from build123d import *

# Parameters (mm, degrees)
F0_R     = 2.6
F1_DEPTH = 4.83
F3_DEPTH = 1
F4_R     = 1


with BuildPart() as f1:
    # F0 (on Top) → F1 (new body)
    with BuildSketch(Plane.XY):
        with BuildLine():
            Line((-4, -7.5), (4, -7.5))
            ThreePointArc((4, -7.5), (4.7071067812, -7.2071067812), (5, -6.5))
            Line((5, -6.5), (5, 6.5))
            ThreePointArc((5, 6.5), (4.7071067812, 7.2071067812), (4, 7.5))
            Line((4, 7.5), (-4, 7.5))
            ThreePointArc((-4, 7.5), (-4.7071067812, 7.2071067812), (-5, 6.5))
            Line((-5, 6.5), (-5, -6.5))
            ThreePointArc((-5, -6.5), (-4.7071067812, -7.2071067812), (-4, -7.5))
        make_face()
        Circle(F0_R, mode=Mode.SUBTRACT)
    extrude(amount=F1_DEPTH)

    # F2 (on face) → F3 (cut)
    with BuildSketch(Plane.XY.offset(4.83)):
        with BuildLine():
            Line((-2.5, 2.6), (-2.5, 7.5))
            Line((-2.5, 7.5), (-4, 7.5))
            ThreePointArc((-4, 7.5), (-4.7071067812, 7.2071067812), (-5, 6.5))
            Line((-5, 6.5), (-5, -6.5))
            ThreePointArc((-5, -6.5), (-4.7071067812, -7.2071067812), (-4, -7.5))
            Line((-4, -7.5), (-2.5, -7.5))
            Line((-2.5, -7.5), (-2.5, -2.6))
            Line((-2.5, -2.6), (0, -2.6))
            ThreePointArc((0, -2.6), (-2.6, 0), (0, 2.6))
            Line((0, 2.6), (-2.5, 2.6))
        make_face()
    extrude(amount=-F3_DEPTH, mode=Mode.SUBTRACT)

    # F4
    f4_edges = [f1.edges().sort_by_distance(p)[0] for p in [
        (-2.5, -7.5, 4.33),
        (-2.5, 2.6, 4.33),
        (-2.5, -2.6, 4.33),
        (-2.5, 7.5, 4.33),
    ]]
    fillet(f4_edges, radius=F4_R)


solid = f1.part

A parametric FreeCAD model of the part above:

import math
import FreeCAD as App
import Part
import Sketcher
Q = App.Units.Quantity


def edges_at(feature, points):
    """Names of the edges that pass closest to the given points."""
    edges = feature.Shape.Edges
    near = lambda p: min(range(len(edges)), key=lambda i: edges[i].distToShape(Part.Vertex(*p))[0])
    return sorted({f"Edge{near(p) + 1}" for p in points})

doc = App.newDocument("Part")
params = doc.addObject("Spreadsheet::Sheet", "Params")
for row, (alias, value) in enumerate([
    ("sketch1_radius", "1 mm"),
    ("sketch1_diameter", "5.2 mm"),
    ("sketch1_width", "8 mm"),
    ("sketch1_height", "13 mm"),
    ("pad1_length", "4.83 mm"),
    ("sketch2_radius", "1 mm"),
    ("sketch2_radius2", "2.6 mm"),
    ("sketch2_height", "13 mm"),
    ("sketch2_width", "1.5 mm"),
    ("sketch2_width2", "2.5 mm"),
    ("pocket1_length", "1 mm"),
    ("fillet_radius", "1 mm"),
], start=1):
    params.set(f"A{row}", alias)
    params.set(f"B{row}", "=" + value)
    params.setAlias(f"B{row}", alias)

body = doc.addObject("PartDesign::Body", "Body")

# Sketch on XY plane
sketch1 = body.newObject("Sketcher::SketchObject", "Sketch")
sketch1.AttachmentSupport = (doc.getObject("XY_Plane"), [""])
sketch1.MapMode = "FlatFace"
sketch1.addGeometry(Part.LineSegment(App.Vector(-4, -7.5, 0), App.Vector(4, -7.5, 0)), False)
sketch1.addGeometry(Part.ArcOfCircle(Part.Circle(App.Vector(4, -6.5, 0), App.Vector(0, 0, 1), 1), math.radians(-90), math.radians(0)), False)
sketch1.addGeometry(Part.LineSegment(App.Vector(5, -6.5, 0), App.Vector(5, 6.5, 0)), False)
sketch1.addGeometry(Part.ArcOfCircle(Part.Circle(App.Vector(4, 6.5, 0), App.Vector(0, 0, 1), 1), math.radians(0), math.radians(90)), False)
sketch1.addGeometry(Part.LineSegment(App.Vector(4, 7.5, 0), App.Vector(-4, 7.5, 0)), False)
sketch1.addGeometry(Part.ArcOfCircle(Part.Circle(App.Vector(-4, 6.5, 0), App.Vector(0, 0, 1), 1), math.radians(90), math.radians(180)), False)
sketch1.addGeometry(Part.LineSegment(App.Vector(-5, 6.5, 0), App.Vector(-5, -6.5, 0)), False)
sketch1.addGeometry(Part.ArcOfCircle(Part.Circle(App.Vector(-4, -6.5, 0), App.Vector(0, 0, 1), 1), math.radians(180), math.radians(270)), False)
sketch1.addGeometry(Part.Circle(App.Vector(0, 0, 0), App.Vector(0, 0, 1), 2.6), False)
sketch1.addConstraint(Sketcher.Constraint("Tangent", 0, 2, 1, 1))
sketch1.addConstraint(Sketcher.Constraint("Tangent", 1, 2, 2, 1))
sketch1.addConstraint(Sketcher.Constraint("Tangent", 2, 2, 3, 1))
sketch1.addConstraint(Sketcher.Constraint("Tangent", 3, 2, 4, 1))
sketch1.addConstraint(Sketcher.Constraint("Tangent", 4, 2, 5, 1))
sketch1.addConstraint(Sketcher.Constraint("Tangent", 5, 2, 6, 1))
sketch1.addConstraint(Sketcher.Constraint("Tangent", 6, 2, 7, 1))
sketch1.addConstraint(Sketcher.Constraint("Tangent", 7, 2, 0, 1))
sketch1.addConstraint(Sketcher.Constraint("Horizontal", 0))
sketch1.addConstraint(Sketcher.Constraint("Vertical", 2))
sketch1.addConstraint(Sketcher.Constraint("Horizontal", 4))
sketch1.addConstraint(Sketcher.Constraint("Vertical", 6))
sketch1.addConstraint(Sketcher.Constraint("Coincident", 8, 3, -1, 1))
sketch1.addConstraint(Sketcher.Constraint("Equal", 1, 3))
sketch1.addConstraint(Sketcher.Constraint("Equal", 3, 5))
sketch1.addConstraint(Sketcher.Constraint("Equal", 5, 7))
sketch1.addConstraint(Sketcher.Constraint("Symmetric", 1, 3, 5, 3, -1, 1))
sketch1.addConstraint(Sketcher.Constraint("Radius", 1, Q("1 mm")))
sketch1.addConstraint(Sketcher.Constraint("Diameter", 8, Q("5.2 mm")))
sketch1.addConstraint(Sketcher.Constraint("DistanceX", 0, 1, 0, 2, Q("8 mm")))
sketch1.addConstraint(Sketcher.Constraint("DistanceY", 2, 1, 2, 2, Q("13 mm")))
sketch1.setExpression("Constraints[17]", "Params.sketch1_radius")
sketch1.setExpression("Constraints[18]", "Params.sketch1_diameter")
sketch1.setExpression("Constraints[19]", "Params.sketch1_width")
sketch1.setExpression("Constraints[20]", "Params.sketch1_height")
pad1 = body.newObject("PartDesign::Pad", "Pad")
pad1.Profile = sketch1
pad1.setExpression("Length", "Params.pad1_length")

# Sketch on XY plane
sketch2 = body.newObject("Sketcher::SketchObject", "Sketch001")
sketch2.AttachmentSupport = (doc.getObject("XY_Plane"), [""])
sketch2.MapMode = "FlatFace"
sketch2.AttachmentOffset = App.Placement(App.Vector(0, 0, 4.83), App.Rotation())
sketch2.addGeometry(Part.LineSegment(App.Vector(-2.5, 2.6, 0), App.Vector(-2.5, 7.5, 0)), False)
sketch2.addGeometry(Part.LineSegment(App.Vector(-2.5, 7.5, 0), App.Vector(-4, 7.5, 0)), False)
sketch2.addGeometry(Part.ArcOfCircle(Part.Circle(App.Vector(-4, 6.5, 0), App.Vector(0, 0, 1), 1), math.radians(90), math.radians(180)), False)
sketch2.addGeometry(Part.LineSegment(App.Vector(-5, 6.5, 0), App.Vector(-5, -6.5, 0)), False)
sketch2.addGeometry(Part.ArcOfCircle(Part.Circle(App.Vector(-4, -6.5, 0), App.Vector(0, 0, 1), 1), math.radians(180), math.radians(270)), False)
sketch2.addGeometry(Part.LineSegment(App.Vector(-4, -7.5, 0), App.Vector(-2.5, -7.5, 0)), False)
sketch2.addGeometry(Part.LineSegment(App.Vector(-2.5, -7.5, 0), App.Vector(-2.5, -2.6, 0)), False)
sketch2.addGeometry(Part.LineSegment(App.Vector(-2.5, -2.6, 0), App.Vector(0, -2.6, 0)), False)
sketch2.addGeometry(Part.ArcOfCircle(Part.Circle(App.Vector(0, 0, 0), App.Vector(0, 0, 1), 2.6), math.radians(90), math.radians(270)), False)
sketch2.addGeometry(Part.LineSegment(App.Vector(0, 2.6, 0), App.Vector(-2.5, 2.6, 0)), False)
sketch2.addConstraint(Sketcher.Constraint("Coincident", 0, 2, 1, 1))
sketch2.addConstraint(Sketcher.Constraint("Tangent", 1, 2, 2, 1))
sketch2.addConstraint(Sketcher.Constraint("Tangent", 2, 2, 3, 1))
sketch2.addConstraint(Sketcher.Constraint("Tangent", 3, 2, 4, 1))
sketch2.addConstraint(Sketcher.Constraint("Tangent", 4, 2, 5, 1))
sketch2.addConstraint(Sketcher.Constraint("Coincident", 5, 2, 6, 1))
sketch2.addConstraint(Sketcher.Constraint("Coincident", 6, 2, 7, 1))
sketch2.addConstraint(Sketcher.Constraint("Tangent", 7, 2, 8, 2))
sketch2.addConstraint(Sketcher.Constraint("Tangent", 8, 1, 9, 1))
sketch2.addConstraint(Sketcher.Constraint("Coincident", 9, 2, 0, 1))
sketch2.addConstraint(Sketcher.Constraint("Vertical", 0))
sketch2.addConstraint(Sketcher.Constraint("Horizontal", 1))
sketch2.addConstraint(Sketcher.Constraint("Vertical", 3))
sketch2.addConstraint(Sketcher.Constraint("Horizontal", 5))
sketch2.addConstraint(Sketcher.Constraint("Vertical", 6))
sketch2.addConstraint(Sketcher.Constraint("Horizontal", 7))
sketch2.addConstraint(Sketcher.Constraint("Horizontal", 9))
sketch2.addConstraint(Sketcher.Constraint("Coincident", 8, 3, -1, 1))
sketch2.addConstraint(Sketcher.Constraint("Equal", 2, 4))
sketch2.addConstraint(Sketcher.Constraint("Symmetric", 0, 2, 5, 2, -1))
sketch2.addConstraint(Sketcher.Constraint("Radius", 2, Q("1 mm")))
sketch2.addConstraint(Sketcher.Constraint("Radius", 8, Q("2.6 mm")))
sketch2.addConstraint(Sketcher.Constraint("DistanceY", 3, 2, 3, 1, Q("13 mm")))
sketch2.addConstraint(Sketcher.Constraint("DistanceX", 1, 2, 1, 1, Q("1.5 mm")))
sketch2.addConstraint(Sketcher.Constraint("DistanceX", 7, 1, 7, 2, Q("2.5 mm")))
sketch2.setExpression("Constraints[20]", "Params.sketch2_radius")
sketch2.setExpression("Constraints[21]", "Params.sketch2_radius2")
sketch2.setExpression("Constraints[22]", "Params.sketch2_height")
sketch2.setExpression("Constraints[23]", "Params.sketch2_width")
sketch2.setExpression("Constraints[24]", "Params.sketch2_width2")
pocket1 = body.newObject("PartDesign::Pocket", "Pocket")
pocket1.Profile = sketch2
pocket1.setExpression("Length", "Params.pocket1_length")
doc.recompute()

fillet = body.newObject("PartDesign::Fillet", "Fillet")
fillet.Base = (pocket1, edges_at(pocket1, [
    (-2.5, -7.5, 4.33),
    (-2.5, 2.6, 4.33),
    (-2.5, -2.6, 4.33),
    (-2.5, 7.5, 4.33),
]))
fillet.setExpression("Radius", "Params.fillet_radius")

doc.recompute()
